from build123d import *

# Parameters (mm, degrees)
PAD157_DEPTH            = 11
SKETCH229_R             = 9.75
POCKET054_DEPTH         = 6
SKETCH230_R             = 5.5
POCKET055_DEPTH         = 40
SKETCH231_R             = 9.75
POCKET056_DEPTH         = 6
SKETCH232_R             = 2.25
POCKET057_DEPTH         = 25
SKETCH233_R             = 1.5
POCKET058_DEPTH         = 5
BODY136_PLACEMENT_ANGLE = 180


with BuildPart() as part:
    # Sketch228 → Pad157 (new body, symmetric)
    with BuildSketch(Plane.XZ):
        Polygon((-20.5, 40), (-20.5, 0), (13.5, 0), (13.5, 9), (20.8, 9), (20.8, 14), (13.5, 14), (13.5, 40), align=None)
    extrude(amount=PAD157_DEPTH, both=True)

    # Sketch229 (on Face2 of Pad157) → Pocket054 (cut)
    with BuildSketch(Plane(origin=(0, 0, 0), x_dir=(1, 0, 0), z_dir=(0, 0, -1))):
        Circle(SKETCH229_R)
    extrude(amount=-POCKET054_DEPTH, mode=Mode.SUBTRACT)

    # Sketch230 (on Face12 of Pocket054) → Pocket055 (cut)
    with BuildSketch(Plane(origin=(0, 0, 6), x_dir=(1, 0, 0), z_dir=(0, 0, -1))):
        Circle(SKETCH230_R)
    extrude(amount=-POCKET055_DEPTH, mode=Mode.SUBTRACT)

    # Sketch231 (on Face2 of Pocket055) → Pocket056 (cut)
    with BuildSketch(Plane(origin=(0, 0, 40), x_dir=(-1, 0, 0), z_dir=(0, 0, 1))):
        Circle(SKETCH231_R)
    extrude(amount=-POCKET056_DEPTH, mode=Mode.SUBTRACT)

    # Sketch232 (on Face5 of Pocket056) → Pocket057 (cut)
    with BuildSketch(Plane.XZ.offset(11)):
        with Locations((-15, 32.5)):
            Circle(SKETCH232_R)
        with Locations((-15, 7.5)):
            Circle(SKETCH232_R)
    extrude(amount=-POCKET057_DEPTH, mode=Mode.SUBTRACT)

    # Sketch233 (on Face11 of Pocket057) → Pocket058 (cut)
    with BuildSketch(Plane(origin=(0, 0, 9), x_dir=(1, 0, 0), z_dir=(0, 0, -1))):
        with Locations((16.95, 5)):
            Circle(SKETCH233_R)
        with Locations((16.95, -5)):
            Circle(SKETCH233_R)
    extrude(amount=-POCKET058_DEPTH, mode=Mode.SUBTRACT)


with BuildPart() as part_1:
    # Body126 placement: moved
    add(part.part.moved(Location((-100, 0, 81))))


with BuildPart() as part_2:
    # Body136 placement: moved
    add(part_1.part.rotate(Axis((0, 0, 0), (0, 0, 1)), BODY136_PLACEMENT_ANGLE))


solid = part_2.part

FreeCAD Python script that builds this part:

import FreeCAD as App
import Part
import Sketcher


def add_polygon(sketch, points):
    """Adds a closed chain of lines whose ends are joined by coincident constraints."""
    first, n = sketch.GeometryCount, len(points)
    for a, b in zip(points, points[1:] + points[:1]):
        sketch.addGeometry(Part.LineSegment(App.Vector(*a, 0), App.Vector(*b, 0)), False)
    for i in range(n):
        sketch.addConstraint(Sketcher.Constraint("Coincident", first + i, 2, first + (i + 1) % n, 1))

doc = App.newDocument("Part")
body = doc.addObject("PartDesign::Body", "Body")

# Sketch on XZ plane
sketch1 = doc.addObject("Sketcher::SketchObject", "Sketch")
body.addObject(sketch1)
sketch1.AttachmentSupport = (doc.XZ_Plane, [""])
sketch1.MapMode = "FlatFace"
add_polygon(sketch1, [(-20, 40), (-20, 0), (14, 0), (14, 9), (21, 9), (21, 14), (14, 14), (14, 40)])  # lines 0-7
sketch1.addConstraint([
    Sketcher.Constraint("Vertical", 0),
    Sketcher.Constraint("Horizontal", 1),
    Sketcher.Constraint("Vertical", 2),
    Sketcher.Constraint("Horizontal", 3),
    Sketcher.Constraint("Vertical", 4),
    Sketcher.Constraint("Horizontal", 5),
    Sketcher.Constraint("Vertical", 6),
    Sketcher.Constraint("Horizontal", 7),
    Sketcher.Constraint("PointOnObject", 0, 2, -1),
    Sketcher.Constraint("Vertical", 2, 2, 5, 2),
    Sketcher.Constraint("DistanceX", 1, 1, 1, 2, 34.0),
    Sketcher.Constraint("DistanceY", 0, 2, 0, 1, 40.0),
    Sketcher.Constraint("DistanceY", 2, 1, 2, 2, 9.0),
    Sketcher.Constraint("DistanceY", 4, 1, 4, 2, 5.0),
    Sketcher.Constraint("DistanceX", 3, 1, 3, 2, 7.3),
    Sketcher.Constraint("DistanceX", 0, 2, -1, 1, 20.5),
])
pad1 = doc.addObject("PartDesign::Pad", "Pad")
body.addObject(pad1)
pad1.Profile = sketch1
pad1.Length = 22
pad1.Midplane = True

# Sketch on XY plane
sketch2 = doc.addObject("Sketcher::SketchObject", "Sketch001")
body.addObject(sketch2)
sketch2.AttachmentSupport = (doc.XY_Plane, [""])
sketch2.MapMode = "FlatFace"
sketch2.addGeometry(Part.Circle(App.Vector(0, 0, 0), App.Vector(0, 0, 1), 10), False)
sketch2.addConstraint([
    Sketcher.Constraint("Coincident", 0, 3, -1, 1),
    Sketcher.Constraint("Diameter", 0, 19.5),
])
pocket1 = doc.addObject("PartDesign::Pocket", "Pocket")
body.addObject(pocket1)
pocket1.Profile = sketch2
pocket1.Length = 6
pocket1.Reversed = True

# Sketch on XY plane
sketch3 = doc.addObject("Sketcher::SketchObject", "Sketch002")
body.addObject(sketch3)
sketch3.AttachmentSupport = (doc.XY_Plane, [""])
sketch3.MapMode = "FlatFace"
sketch3.AttachmentOffset = App.Placement(App.Vector(0, 0, 6), App.Rotation())
sketch3.addGeometry(Part.Circle(App.Vector(0, 0, 0), App.Vector(0, 0, 1), 6), False)
sketch3.addConstraint([
    Sketcher.Constraint("Coincident", 0, 3, -1, 1),
    Sketcher.Constraint("Diameter", 0, 11.0),
])
pocket2 = doc.addObject("PartDesign::Pocket", "Pocket001")
body.addObject(pocket2)
pocket2.Profile = sketch3
pocket2.Length = 40
pocket2.Reversed = True

# Sketch on XY plane
sketch4 = doc.addObject("Sketcher::SketchObject", "Sketch003")
body.addObject(sketch4)
sketch4.AttachmentSupport = (doc.XY_Plane, [""])
sketch4.MapMode = "FlatFace"
sketch4.AttachmentOffset = App.Placement(App.Vector(0, 0, 40), App.Rotation())
sketch4.addGeometry(Part.Circle(App.Vector(0, 0, 0), App.Vector(0, 0, 1), 10), False)
sketch4.addConstraint([
    Sketcher.Constraint("Coincident", 0, 3, -1, 1),
    Sketcher.Constraint("Diameter", 0, 19.5),
])
pocket3 = doc.addObject("PartDesign::Pocket", "Pocket002")
body.addObject(pocket3)
pocket3.Profile = sketch4
pocket3.Length = 6

# Sketch on XZ plane
sketch5 = doc.addObject("Sketcher::SketchObject", "Sketch004")
body.addObject(sketch5)
sketch5.AttachmentSupport = (doc.XZ_Plane, [""])
sketch5.MapMode = "FlatFace"
sketch5.AttachmentOffset = App.Placement(App.Vector(0, 0, 11), App.Rotation())
sketch5.addGeometry([
    Part.Circle(App.Vector(-15, 32.5, 0), App.Vector(0, 0, 1), 2.2),
    Part.Circle(App.Vector(-15, 7.5, 0), App.Vector(0, 0, 1), 2.2),
], False)
sketch5.addConstraint([
    Sketcher.Constraint("Equal", 0, 1),
    Sketcher.Constraint("Vertical", 0, 3, 1, 3),
    Sketcher.Constraint("Diameter", 0, 4.5),
    Sketcher.Constraint("DistanceX", 0, 3, -1, 1, 15.0),
    Sketcher.Constraint("DistanceY", 1, 3, 0, 3, 25.0),
    Sketcher.Constraint("DistanceY", -1, 1, 0, 3, 32.5),
])
pocket4 = doc.addObject("PartDesign::Pocket", "Pocket003")
body.addObject(pocket4)
pocket4.Profile = sketch5
pocket4.Length = 25

# Sketch on XY plane
sketch6 = doc.addObject("Sketcher::SketchObject", "Sketch005")
body.addObject(sketch6)
sketch6.AttachmentSupport = (doc.XY_Plane, [""])
sketch6.MapMode = "FlatFace"
sketch6.AttachmentOffset = App.Placement(App.Vector(0, 0, 9), App.Rotation())
sketch6.addGeometry([
    Part.Circle(App.Vector(16.9, -5, 0), App.Vector(0, 0, 1), 1.5),
    Part.Circle(App.Vector(16.9, 5, 0), App.Vector(0, 0, 1), 1.5),
], False)
sketch6.addConstraint([
    Sketcher.Constraint("Equal", 0, 1),
    Sketcher.Constraint("Symmetric", 0, 3, 1, 3, -1),
    Sketcher.Constraint("Diameter", 0, 3.0),
    Sketcher.Constraint("DistanceY", 0, 3, -1, 1, 5.0),
    Sketcher.Constraint("DistanceX", -1, 1, 0, 3, 16.95),
])
pocket5 = doc.addObject("PartDesign::Pocket", "Pocket004")
body.addObject(pocket5)
pocket5.Profile = sketch6
pocket5.Length = 5
pocket5.Reversed = True
body2 = doc.addObject("PartDesign::Body", "Body001")
doc.recompute()

body.Placement = App.Placement(App.Vector(-100, 0, 81), App.Rotation(App.Vector(0, 0, 1), 0))
boolean = doc.addObject("PartDesign::Boolean", "Boolean")
body2.addObject(boolean)
boolean.Type = "Fuse"
boolean.addObjects([body])
body3 = doc.addObject("PartDesign::Body", "Body002")
doc.recompute()

body2.Placement = App.Placement(App.Vector(0, 0, 0), App.Rotation(App.Vector(0, 0, 1), 180))
boolean2 = doc.addObject("PartDesign::Boolean", "Boolean001")
body3.addObject(boolean2)
boolean2.Type = "Fuse"
boolean2.addObjects([body2])

doc.recompute()
